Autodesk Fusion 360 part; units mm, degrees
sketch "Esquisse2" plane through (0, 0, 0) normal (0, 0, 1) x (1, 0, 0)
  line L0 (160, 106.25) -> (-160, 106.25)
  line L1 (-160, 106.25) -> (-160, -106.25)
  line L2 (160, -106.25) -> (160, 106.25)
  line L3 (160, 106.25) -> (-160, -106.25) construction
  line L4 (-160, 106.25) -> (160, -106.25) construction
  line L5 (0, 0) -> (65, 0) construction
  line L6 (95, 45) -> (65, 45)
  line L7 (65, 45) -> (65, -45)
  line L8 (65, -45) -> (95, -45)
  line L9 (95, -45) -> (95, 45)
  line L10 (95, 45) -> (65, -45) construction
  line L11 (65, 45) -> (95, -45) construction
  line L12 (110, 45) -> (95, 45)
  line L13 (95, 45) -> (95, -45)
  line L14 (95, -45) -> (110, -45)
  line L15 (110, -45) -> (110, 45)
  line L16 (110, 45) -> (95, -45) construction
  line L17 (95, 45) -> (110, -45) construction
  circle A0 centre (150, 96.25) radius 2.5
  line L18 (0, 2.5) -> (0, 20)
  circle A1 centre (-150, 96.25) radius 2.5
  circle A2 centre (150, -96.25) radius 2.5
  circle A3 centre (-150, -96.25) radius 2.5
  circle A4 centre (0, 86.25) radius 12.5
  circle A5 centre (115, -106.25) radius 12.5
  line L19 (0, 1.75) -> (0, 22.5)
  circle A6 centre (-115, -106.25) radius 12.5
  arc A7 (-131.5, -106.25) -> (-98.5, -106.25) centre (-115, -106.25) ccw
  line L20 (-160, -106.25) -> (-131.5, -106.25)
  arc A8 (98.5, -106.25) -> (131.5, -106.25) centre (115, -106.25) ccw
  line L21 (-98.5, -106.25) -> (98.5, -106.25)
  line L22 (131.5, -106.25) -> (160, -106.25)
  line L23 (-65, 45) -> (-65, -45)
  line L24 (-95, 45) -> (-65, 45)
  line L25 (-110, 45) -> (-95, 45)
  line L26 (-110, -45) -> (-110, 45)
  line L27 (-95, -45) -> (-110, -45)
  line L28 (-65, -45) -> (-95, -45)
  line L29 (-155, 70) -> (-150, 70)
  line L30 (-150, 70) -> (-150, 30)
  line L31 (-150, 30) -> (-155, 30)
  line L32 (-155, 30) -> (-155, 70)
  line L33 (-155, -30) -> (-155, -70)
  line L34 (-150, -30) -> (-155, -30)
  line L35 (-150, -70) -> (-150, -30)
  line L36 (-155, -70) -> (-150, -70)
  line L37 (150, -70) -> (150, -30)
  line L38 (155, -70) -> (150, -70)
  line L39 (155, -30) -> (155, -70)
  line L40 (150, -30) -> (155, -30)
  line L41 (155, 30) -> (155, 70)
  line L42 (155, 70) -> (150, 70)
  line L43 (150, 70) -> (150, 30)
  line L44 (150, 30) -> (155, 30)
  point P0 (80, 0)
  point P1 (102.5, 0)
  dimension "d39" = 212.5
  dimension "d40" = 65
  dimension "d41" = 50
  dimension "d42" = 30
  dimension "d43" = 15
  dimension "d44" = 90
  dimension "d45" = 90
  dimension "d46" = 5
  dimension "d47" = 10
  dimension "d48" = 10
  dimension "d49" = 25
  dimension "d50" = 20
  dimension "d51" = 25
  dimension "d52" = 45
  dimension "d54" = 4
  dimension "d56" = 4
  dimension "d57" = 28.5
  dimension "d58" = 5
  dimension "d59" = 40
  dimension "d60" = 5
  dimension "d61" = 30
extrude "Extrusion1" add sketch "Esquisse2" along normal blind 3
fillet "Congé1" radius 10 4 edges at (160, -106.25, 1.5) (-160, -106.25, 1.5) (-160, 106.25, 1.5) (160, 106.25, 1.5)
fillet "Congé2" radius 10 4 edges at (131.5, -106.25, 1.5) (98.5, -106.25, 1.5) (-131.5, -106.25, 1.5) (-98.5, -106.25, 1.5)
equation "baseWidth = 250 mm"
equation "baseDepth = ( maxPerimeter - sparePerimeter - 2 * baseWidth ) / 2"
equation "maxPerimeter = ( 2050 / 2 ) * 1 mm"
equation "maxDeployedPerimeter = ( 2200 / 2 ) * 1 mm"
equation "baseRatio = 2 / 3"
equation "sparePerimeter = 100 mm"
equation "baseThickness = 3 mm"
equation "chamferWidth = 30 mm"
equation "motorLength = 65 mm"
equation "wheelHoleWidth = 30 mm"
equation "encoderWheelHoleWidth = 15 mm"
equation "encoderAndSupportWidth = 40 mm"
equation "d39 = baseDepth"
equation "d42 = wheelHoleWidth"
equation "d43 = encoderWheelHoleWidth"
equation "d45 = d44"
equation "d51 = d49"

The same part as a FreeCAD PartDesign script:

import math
import FreeCAD as App
import Part
import Sketcher
Q = App.Units.Quantity


def edges_at(feature, points):
    """Names of the edges that pass closest to the given points."""
    edges = feature.Shape.Edges
    near = lambda p: min(range(len(edges)), key=lambda i: edges[i].distToShape(Part.Vertex(*p))[0])
    return sorted({f"Edge{near(p) + 1}" for p in points})


def add_polygon(sketch, points):
    """Adds a closed chain of lines whose ends are joined by coincident constraints."""
    first, n = sketch.GeometryCount, len(points)
    for a, b in zip(points, points[1:] + points[:1]):
        sketch.addGeometry(Part.LineSegment(App.Vector(*a, 0), App.Vector(*b, 0)), False)
    for i in range(n):
        sketch.addConstraint(Sketcher.Constraint("Coincident", first + i, 2, first + (i + 1) % n, 1))

doc = App.newDocument("Part")
body = doc.addObject("PartDesign::Body", "Body")

# Sketch on XY plane
sketch1 = doc.addObject("Sketcher::SketchObject", "Sketch")
body.addObject(sketch1)
sketch1.AttachmentSupport = (doc.XY_Plane, [""])
sketch1.MapMode = "FlatFace"
sketch1.addGeometry(Part.LineSegment(App.Vector(160, -106.2, 0), App.Vector(160, 106.2, 0)), False)  # 0
sketch1.addGeometry(Part.LineSegment(App.Vector(160, 106.2, 0), App.Vector(-160, 106.2, 0)), False)  # 1
sketch1.addGeometry(Part.LineSegment(App.Vector(-160, 106.2, 0), App.Vector(-160, -106.2, 0)), False)  # 2
sketch1.addGeometry(Part.LineSegment(App.Vector(-160, -106.2, 0), App.Vector(-131.5, -106.2, 0)), False)  # 3
sketch1.addGeometry(Part.ArcOfCircle(Part.Circle(App.Vector(-115, -106.2, 0), App.Vector(0, 0, 1), 16.5), math.radians(180), math.radians(360)), False)  # 4
sketch1.addGeometry(Part.LineSegment(App.Vector(-98.5, -106.2, 0), App.Vector(98.5, -106.2, 0)), False)  # 5
sketch1.addGeometry(Part.ArcOfCircle(Part.Circle(App.Vector(115, -106.2, 0), App.Vector(0, 0, 1), 16.5), math.radians(180), math.radians(360)), False)  # 6
sketch1.addGeometry(Part.LineSegment(App.Vector(131.5, -106.2, 0), App.Vector(160, -106.2, 0)), False)  # 7
sketch1.addGeometry(Part.Circle(App.Vector(-150, -96.2, 0), App.Vector(0, 0, 1), 2.5), False)  # 8
sketch1.addGeometry(Part.Circle(App.Vector(-115, -106.2, 0), App.Vector(0, 0, 1), 12.5), False)  # 9
add_polygon(sketch1, [(-155, -70), (-155, -30), (-150, -30), (-150, -70)])  # lines 10-13
sketch1.addGeometry(Part.Circle(App.Vector(115, -106.2, 0), App.Vector(0, 0, 1), 12.5), False)  # 14
sketch1.addGeometry(Part.Circle(App.Vector(150, -96.2, 0), App.Vector(0, 0, 1), 2.5), False)  # 15
add_polygon(sketch1, [(155, -70), (150, -70), (150, -30), (155, -30)])  # lines 16-19
add_polygon(sketch1, [(-110, 45), (-65, 45), (-65, -45), (-110, -45)])  # lines 20-23
add_polygon(sketch1, [(-155, 30), (-155, 70), (-150, 70), (-150, 30)])  # lines 24-27
sketch1.addGeometry(Part.Circle(App.Vector(-150, 96.2, 0), App.Vector(0, 0, 1), 2.5), False)  # 28
add_polygon(sketch1, [(65, 45), (110, 45), (110, -45), (65, -45)])  # lines 29-32
sketch1.addGeometry(Part.Circle(App.Vector(0, 86.2, 0), App.Vector(0, 0, 1), 12.5), False)  # 33
add_polygon(sketch1, [(155, 70), (155, 30), (150, 30), (150, 70)])  # lines 34-37
sketch1.addGeometry(Part.Circle(App.Vector(150, 96.2, 0), App.Vector(0, 0, 1), 2.5), False)  # 38
sketch1.addConstraint([
    Sketcher.Constraint("Coincident", 0, 2, 1, 1),
    Sketcher.Constraint("Coincident", 1, 2, 2, 1),
    Sketcher.Constraint("Coincident", 2, 2, 3, 1),
    Sketcher.Constraint("Coincident", 3, 2, 4, 1),
    Sketcher.Constraint("Coincident", 4, 2, 5, 1),
    Sketcher.Constraint("Coincident", 5, 2, 6, 1),
    Sketcher.Constraint("Coincident", 6, 2, 7, 1),
    Sketcher.Constraint("Coincident", 7, 2, 0, 1),
    Sketcher.Constraint("Vertical", 0),
    Sketcher.Constraint("Horizontal", 1),
    Sketcher.Constraint("Vertical", 2),
    Sketcher.Constraint("Horizontal", 3),
    Sketcher.Constraint("Horizontal", 5),
    Sketcher.Constraint("Horizontal", 7),
    Sketcher.Constraint("Vertical", 10),
    Sketcher.Constraint("Horizontal", 11),
    Sketcher.Constraint("Vertical", 12),
    Sketcher.Constraint("Horizontal", 13),
    Sketcher.Constraint("Horizontal", 16),
    Sketcher.Constraint("Vertical", 17),
    Sketcher.Constraint("Horizontal", 18),
    Sketcher.Constraint("Vertical", 19),
    Sketcher.Constraint("Horizontal", 20),
    Sketcher.Constraint("Vertical", 21),
    Sketcher.Constraint("Horizontal", 22),
    Sketcher.Constraint("Vertical", 23),
    Sketcher.Constraint("Vertical", 24),
    Sketcher.Constraint("Horizontal", 25),
    Sketcher.Constraint("Vertical", 26),
    Sketcher.Constraint("Horizontal", 27),
    Sketcher.Constraint("Horizontal", 29),
    Sketcher.Constraint("Vertical", 30),
    Sketcher.Constraint("Horizontal", 31),
    Sketcher.Constraint("Vertical", 32),
    Sketcher.Constraint("Vertical", 34),
    Sketcher.Constraint("Horizontal", 35),
    Sketcher.Constraint("Vertical", 36),
    Sketcher.Constraint("Horizontal", 37),
    Sketcher.Constraint("Coincident", 9, 3, 4, 3),
    Sketcher.Constraint("Coincident", 14, 3, 6, 3),
    Sketcher.Constraint("Equal", 4, 6),
    Sketcher.Constraint("Equal", 9, 14),
    Sketcher.Constraint("Equal", 8, 15),
    Sketcher.Constraint("Equal", 15, 28),
    Sketcher.Constraint("Equal", 14, 33),
    Sketcher.Constraint("Equal", 28, 38),
    Sketcher.Constraint("Symmetric", 15, 3, 28, 3, -1, 1),
    Sketcher.Constraint("Symmetric", 8, 3, 38, 3, -1, 1),
    Sketcher.Constraint("Symmetric", 0, 2, 2, 2, -1, 1),
    Sketcher.Constraint("Symmetric", 19, 2, 24, 2, -1, 1),
    Sketcher.Constraint("Symmetric", 17, 2, 26, 2, -1, 1),
    Sketcher.Constraint("Symmetric", 22, 2, 29, 2, -1, 1),
    Sketcher.Constraint("Symmetric", 20, 2, 31, 2, -1, 1),
    Sketcher.Constraint("Symmetric", 10, 2, 34, 2, -1, 1),
    Sketcher.Constraint("Symmetric", 12, 2, 36, 2, -1, 1),
    Sketcher.Constraint("Symmetric", 4, 3, 6, 3, -2),
    Sketcher.Constraint("Symmetric", 8, 3, 15, 3, -2),
    Sketcher.Constraint("Symmetric", 12, 2, 16, 2, -2),
    Sketcher.Constraint("Symmetric", 10, 2, 18, 2, -2),
    Sketcher.Constraint("PointOnObject", 33, 3, -2),
    Sketcher.Constraint("Horizontal", 14, 3, 2, 2),
    Sketcher.Constraint("Horizontal", 3, 2, 4, 2),
    Sketcher.Constraint("Horizontal", 5, 2, 6, 2),
    Sketcher.Constraint("Horizontal", 23, 2, 29, 2),
    Sketcher.Constraint("Vertical", 28, 3, 11, 2),
    Sketcher.Constraint("Diameter", 8, Q("5 mm")),
    Sketcher.Constraint("Diameter", 9, Q("25 mm")),
    Sketcher.Constraint("DistanceX", 11, 1, 11, 2, Q("5 mm")),
    Sketcher.Constraint("DistanceX", 20, 1, 20, 2, Q("45 mm")),
    Sketcher.Constraint("DistanceY", 10, 1, 10, 2, Q("40 mm")),
    Sketcher.Constraint("DistanceY", 21, 2, 21, 1, Q("90 mm")),
    Sketcher.Constraint("DistanceX", 3, 1, 3, 2, Q("28.5 mm")),
    Sketcher.Constraint("DistanceY", 0, 1, 0, 2, Q("212.5 mm")),
    Sketcher.Constraint("DistanceY", 10, 2, -1, 1, Q("30 mm")),
    Sketcher.Constraint("DistanceX", 20, 2, -1, 1, Q("65 mm")),
    Sketcher.Constraint("DistanceY", 4, 3, 8, 3, Q("10 mm")),
    Sketcher.Constraint("DistanceY", 33, 3, 28, 3, Q("10 mm")),
    Sketcher.Constraint("DistanceX", 38, 3, 0, 2, Q("10 mm")),
    Sketcher.Constraint("DistanceX", 6, 3, 0, 2, Q("45 mm")),
    Sketcher.Constraint("DistanceX", 10, 2, 20, 2, Q("90 mm")),
])
pad1 = doc.addObject("PartDesign::Pad", "Pad")
body.addObject(pad1)
pad1.Profile = sketch1
pad1.Length = 3
doc.recompute()

fillet = doc.addObject("PartDesign::Fillet", "Fillet")
body.addObject(fillet)
fillet.Base = (pad1, edges_at(pad1, [
    (160, -106.25, 1.5),
    (-160, -106.25, 1.5),
    (-160, 106.25, 1.5),
    (160, 106.25, 1.5),
]))
fillet.Radius = 10
doc.recompute()

fillet2 = doc.addObject("PartDesign::Fillet", "Fillet001")
body.addObject(fillet2)
fillet2.Base = (fillet, edges_at(fillet, [
    (131.5, -106.25, 1.5),
    (98.5, -106.25, 1.5),
    (-131.5, -106.25, 1.5),
    (-98.5, -106.25, 1.5),
]))
fillet2.Radius = 10

doc.recompute()
